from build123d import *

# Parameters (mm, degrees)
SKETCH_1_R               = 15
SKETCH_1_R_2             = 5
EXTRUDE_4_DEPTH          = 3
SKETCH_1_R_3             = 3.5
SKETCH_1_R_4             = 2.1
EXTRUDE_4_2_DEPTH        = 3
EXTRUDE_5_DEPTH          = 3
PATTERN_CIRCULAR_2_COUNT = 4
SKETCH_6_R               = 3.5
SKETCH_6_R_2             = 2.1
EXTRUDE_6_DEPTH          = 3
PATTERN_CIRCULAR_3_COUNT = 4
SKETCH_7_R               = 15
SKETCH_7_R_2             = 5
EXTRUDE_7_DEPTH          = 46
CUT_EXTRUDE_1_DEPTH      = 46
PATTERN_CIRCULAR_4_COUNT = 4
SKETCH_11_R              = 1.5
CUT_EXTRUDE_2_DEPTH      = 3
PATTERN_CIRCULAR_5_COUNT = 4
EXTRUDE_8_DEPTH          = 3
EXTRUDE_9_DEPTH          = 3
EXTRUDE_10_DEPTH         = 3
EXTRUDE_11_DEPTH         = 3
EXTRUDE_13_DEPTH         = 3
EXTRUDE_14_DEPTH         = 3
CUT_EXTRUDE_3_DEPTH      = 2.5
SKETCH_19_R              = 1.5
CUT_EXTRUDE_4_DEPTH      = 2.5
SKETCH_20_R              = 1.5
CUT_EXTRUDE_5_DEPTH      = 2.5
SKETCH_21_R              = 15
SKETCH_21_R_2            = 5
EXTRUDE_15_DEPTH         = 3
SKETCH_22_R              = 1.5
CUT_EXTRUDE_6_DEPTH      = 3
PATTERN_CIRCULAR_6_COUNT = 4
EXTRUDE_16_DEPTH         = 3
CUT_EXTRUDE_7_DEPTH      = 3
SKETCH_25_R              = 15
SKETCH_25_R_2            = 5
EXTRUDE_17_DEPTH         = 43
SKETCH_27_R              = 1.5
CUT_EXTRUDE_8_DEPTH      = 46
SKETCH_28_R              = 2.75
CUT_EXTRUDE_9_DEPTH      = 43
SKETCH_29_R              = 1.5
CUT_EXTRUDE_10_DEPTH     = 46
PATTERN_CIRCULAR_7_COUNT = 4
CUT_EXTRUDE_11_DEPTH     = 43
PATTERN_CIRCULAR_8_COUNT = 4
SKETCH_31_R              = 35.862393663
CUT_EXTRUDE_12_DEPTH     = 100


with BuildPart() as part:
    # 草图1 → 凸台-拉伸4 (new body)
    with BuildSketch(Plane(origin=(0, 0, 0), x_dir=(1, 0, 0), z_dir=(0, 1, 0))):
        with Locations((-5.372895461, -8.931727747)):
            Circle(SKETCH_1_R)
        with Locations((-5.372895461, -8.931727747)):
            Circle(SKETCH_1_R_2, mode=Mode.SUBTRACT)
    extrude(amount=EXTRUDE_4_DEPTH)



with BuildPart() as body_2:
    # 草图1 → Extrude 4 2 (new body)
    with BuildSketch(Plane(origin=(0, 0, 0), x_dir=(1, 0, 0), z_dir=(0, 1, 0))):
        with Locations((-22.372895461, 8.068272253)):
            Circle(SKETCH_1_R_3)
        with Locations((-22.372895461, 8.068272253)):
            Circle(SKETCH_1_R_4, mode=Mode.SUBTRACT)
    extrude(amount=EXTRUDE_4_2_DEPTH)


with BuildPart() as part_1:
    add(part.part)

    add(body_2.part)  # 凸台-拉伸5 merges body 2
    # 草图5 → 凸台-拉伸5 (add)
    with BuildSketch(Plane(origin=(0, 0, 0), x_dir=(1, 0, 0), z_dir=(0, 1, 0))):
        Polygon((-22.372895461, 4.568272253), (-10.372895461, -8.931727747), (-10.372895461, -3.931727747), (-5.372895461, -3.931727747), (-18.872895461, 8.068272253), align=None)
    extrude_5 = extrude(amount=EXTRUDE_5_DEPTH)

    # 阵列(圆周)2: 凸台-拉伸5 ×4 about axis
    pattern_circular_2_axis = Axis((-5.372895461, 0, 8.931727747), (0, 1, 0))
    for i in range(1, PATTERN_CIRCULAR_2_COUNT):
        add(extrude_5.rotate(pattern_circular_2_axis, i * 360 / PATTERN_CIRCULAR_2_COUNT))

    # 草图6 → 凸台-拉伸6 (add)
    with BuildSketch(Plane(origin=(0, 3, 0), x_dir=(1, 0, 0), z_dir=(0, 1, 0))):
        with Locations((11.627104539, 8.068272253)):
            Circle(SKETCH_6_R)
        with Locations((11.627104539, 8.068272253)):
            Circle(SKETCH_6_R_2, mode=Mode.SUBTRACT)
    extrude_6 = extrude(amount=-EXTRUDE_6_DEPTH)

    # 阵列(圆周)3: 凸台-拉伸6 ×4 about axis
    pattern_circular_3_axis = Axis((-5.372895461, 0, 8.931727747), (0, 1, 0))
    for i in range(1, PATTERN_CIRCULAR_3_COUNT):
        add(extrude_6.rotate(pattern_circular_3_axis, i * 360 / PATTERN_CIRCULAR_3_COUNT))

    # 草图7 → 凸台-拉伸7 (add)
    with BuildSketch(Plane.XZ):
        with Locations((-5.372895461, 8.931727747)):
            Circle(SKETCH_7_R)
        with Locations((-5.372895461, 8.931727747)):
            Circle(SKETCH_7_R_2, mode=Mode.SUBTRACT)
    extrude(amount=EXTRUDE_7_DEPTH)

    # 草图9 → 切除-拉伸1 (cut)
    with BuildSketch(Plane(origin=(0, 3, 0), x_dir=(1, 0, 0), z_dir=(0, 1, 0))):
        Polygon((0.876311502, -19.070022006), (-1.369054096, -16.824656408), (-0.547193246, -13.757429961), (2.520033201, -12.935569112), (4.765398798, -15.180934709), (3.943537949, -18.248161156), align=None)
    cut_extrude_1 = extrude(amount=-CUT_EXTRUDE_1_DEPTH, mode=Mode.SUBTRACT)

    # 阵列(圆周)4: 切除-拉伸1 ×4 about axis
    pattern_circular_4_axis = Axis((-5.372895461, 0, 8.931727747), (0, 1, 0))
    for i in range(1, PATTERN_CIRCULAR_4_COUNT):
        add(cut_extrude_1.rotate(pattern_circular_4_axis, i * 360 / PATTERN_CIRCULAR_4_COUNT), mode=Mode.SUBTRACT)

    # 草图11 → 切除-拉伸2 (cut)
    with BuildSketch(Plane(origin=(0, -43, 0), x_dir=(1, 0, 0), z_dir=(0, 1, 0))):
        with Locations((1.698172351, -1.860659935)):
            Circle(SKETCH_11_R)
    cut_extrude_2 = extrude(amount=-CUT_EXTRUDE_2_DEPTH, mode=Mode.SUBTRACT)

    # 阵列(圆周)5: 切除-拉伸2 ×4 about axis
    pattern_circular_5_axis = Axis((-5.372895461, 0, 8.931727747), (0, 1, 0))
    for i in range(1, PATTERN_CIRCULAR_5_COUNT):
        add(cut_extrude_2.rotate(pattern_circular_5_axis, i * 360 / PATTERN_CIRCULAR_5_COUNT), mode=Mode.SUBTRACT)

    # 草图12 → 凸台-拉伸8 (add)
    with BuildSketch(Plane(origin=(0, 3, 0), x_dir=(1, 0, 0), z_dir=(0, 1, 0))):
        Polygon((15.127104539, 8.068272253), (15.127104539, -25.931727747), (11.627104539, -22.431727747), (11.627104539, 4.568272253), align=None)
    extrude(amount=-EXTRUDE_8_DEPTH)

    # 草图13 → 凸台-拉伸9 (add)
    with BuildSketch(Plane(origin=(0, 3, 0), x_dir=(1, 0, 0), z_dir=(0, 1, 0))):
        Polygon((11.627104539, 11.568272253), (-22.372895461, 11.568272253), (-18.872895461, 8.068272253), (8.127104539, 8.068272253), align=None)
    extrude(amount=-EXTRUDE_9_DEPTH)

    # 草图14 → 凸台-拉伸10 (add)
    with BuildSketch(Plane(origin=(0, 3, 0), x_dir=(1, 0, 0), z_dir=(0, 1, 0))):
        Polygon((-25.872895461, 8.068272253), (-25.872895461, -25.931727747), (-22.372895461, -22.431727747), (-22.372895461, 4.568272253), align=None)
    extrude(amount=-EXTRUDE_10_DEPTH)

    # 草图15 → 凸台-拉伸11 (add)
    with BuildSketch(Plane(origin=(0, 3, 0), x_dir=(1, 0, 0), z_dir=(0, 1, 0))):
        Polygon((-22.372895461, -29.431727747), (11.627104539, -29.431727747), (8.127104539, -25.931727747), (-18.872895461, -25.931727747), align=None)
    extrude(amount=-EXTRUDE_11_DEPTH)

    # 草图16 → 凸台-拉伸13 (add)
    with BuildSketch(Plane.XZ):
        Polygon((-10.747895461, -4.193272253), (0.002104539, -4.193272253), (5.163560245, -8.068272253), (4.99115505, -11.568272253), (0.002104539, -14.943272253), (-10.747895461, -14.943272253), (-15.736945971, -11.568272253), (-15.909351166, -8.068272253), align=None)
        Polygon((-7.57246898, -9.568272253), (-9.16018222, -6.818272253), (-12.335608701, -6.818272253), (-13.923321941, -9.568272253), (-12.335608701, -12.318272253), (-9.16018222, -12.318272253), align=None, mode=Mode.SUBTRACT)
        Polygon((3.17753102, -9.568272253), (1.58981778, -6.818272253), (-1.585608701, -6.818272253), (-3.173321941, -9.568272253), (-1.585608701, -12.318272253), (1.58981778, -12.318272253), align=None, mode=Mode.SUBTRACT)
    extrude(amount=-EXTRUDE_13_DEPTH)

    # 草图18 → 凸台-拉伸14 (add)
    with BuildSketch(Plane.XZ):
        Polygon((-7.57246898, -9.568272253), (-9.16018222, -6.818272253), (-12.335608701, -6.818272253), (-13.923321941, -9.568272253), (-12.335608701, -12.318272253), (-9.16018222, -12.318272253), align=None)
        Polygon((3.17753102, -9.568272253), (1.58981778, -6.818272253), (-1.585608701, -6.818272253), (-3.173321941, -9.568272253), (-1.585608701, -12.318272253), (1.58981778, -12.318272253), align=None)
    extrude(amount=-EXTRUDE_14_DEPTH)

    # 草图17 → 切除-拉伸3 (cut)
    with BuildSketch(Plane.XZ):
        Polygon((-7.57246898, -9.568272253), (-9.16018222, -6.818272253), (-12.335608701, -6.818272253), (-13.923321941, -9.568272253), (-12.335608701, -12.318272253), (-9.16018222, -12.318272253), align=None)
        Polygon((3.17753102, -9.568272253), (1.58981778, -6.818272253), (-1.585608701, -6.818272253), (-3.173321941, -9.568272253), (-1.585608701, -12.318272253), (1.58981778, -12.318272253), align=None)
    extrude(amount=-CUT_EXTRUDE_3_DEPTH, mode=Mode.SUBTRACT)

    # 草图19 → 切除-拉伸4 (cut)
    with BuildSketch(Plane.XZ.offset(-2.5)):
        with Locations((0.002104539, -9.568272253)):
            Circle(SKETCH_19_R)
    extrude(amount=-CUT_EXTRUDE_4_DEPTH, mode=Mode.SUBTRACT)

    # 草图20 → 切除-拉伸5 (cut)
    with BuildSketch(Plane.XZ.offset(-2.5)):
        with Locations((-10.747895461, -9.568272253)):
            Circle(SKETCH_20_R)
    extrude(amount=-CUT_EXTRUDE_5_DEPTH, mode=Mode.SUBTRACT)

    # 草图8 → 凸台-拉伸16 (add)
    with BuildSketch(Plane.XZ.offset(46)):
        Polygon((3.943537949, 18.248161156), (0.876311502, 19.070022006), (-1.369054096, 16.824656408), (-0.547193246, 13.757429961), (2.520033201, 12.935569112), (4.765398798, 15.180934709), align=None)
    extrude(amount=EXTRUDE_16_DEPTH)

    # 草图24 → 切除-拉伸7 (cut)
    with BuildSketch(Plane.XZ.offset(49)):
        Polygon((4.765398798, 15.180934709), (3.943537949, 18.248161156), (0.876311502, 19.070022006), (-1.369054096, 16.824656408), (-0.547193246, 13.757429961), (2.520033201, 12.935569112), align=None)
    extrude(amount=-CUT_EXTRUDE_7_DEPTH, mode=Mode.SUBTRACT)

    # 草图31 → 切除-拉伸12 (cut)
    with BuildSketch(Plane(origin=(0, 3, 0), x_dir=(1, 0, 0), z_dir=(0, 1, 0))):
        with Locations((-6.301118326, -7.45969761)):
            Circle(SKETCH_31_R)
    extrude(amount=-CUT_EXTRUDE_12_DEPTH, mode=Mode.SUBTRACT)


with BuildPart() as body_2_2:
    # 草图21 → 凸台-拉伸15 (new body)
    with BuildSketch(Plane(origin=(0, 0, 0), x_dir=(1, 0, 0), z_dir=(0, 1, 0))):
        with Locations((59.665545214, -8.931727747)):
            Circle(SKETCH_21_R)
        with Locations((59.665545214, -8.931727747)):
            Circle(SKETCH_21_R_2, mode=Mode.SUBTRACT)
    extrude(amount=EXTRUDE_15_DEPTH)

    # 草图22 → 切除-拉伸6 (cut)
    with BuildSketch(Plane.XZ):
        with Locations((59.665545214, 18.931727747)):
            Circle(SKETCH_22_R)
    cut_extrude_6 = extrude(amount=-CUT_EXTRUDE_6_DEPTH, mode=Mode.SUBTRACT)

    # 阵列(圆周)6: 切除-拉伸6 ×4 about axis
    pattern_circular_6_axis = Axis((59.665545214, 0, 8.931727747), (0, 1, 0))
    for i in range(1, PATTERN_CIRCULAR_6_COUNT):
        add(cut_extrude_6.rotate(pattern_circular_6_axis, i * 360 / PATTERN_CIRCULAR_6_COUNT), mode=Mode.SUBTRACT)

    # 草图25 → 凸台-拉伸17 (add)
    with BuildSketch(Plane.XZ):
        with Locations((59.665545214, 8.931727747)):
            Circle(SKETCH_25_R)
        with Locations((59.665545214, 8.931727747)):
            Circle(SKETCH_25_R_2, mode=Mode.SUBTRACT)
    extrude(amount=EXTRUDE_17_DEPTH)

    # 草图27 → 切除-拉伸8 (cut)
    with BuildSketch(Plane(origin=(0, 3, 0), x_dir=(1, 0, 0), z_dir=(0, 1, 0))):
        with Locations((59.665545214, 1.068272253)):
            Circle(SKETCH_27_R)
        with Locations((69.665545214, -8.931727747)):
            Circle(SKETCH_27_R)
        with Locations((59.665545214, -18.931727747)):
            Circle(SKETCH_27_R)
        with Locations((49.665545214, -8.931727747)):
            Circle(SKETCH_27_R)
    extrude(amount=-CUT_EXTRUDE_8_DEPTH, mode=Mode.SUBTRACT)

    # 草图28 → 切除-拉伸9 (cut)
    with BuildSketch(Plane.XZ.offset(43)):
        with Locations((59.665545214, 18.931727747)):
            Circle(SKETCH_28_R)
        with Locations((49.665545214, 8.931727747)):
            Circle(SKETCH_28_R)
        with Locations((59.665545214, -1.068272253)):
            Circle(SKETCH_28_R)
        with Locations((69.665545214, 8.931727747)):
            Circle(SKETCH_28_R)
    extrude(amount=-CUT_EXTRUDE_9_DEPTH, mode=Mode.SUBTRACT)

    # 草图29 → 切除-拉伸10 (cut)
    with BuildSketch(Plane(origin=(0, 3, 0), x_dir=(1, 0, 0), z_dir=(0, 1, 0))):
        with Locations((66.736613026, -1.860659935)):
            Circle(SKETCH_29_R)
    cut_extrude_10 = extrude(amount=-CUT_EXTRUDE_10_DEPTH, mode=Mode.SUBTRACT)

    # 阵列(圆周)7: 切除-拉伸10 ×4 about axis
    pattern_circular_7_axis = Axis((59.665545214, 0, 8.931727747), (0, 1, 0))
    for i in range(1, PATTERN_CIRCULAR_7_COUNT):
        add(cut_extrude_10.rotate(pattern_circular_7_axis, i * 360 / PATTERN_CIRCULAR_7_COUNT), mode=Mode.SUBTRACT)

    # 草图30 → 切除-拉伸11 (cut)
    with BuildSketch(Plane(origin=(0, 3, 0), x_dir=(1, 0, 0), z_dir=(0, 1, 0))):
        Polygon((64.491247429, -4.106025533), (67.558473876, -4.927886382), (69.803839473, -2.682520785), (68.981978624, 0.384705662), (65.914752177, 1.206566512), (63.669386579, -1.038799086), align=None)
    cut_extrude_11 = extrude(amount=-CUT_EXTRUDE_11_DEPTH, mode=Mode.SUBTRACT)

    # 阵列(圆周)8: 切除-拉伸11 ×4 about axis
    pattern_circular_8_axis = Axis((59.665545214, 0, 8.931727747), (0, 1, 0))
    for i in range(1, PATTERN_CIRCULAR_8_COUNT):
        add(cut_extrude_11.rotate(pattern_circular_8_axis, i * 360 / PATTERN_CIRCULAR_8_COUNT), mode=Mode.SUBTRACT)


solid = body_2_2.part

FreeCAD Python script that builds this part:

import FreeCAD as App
import Part
import Sketcher
from FreeCAD import Vector
Q = App.Units.Quantity

doc = App.newDocument("Part")
body = doc.addObject("PartDesign::Body", "Body")

sketch1 = body.newObject("Sketcher::SketchObject", "Sketch")
sketch1.AttachmentSupport = (doc.getObject("XZ_Plane"), [""])
sketch1.MapMode = "FlatFace"
sketch1.addGeometry([
    Part.Circle(Vector(-5, 9, 0), Vector(0, 0, 1), 15),
    Part.Circle(Vector(-5, 9, 0), Vector(0, 0, 1), 5),
], False)
sketch1.addConstraint([
    Sketcher.Constraint("Coincident", 1, 3, 0, 3),
    Sketcher.Constraint("Diameter", 0, 30.0),
    Sketcher.Constraint("Diameter", 1, 10.0),
    Sketcher.Constraint("DistanceX", 0, 3, -1, 1, 5.372895),
    Sketcher.Constraint("DistanceY", -1, 1, 0, 3, 8.931728),
])
pad1 = body.newObject("PartDesign::Pad", "Pad")
pad1.Profile = sketch1
pad1.Length = 3
pad1.Reversed = True
body2 = doc.addObject("PartDesign::Body", "Body001")

sketch2 = body2.newObject("Sketcher::SketchObject", "Sketch001")
sketch2.AttachmentSupport = (doc.getObject("XZ_Plane001"), [""])
sketch2.MapMode = "FlatFace"
sketch2.addGeometry([
    Part.Circle(Vector(-22.4, -8.1, 0), Vector(0, 0, 1), 3.5),
    Part.Circle(Vector(-22.4, -8.1, 0), Vector(0, 0, 1), 2.1),
], False)
sketch2.addConstraint([
    Sketcher.Constraint("Coincident", 1, 3, 0, 3),
    Sketcher.Constraint("Diameter", 0, 7.0),
    Sketcher.Constraint("Diameter", 1, 4.2),
    Sketcher.Constraint("DistanceX", 0, 3, -1, 1, 22.372895),
    Sketcher.Constraint("DistanceY", 0, 3, -1, 1, 8.068272),
])
pad2 = body2.newObject("PartDesign::Pad", "Pad001")
pad2.Profile = sketch2
pad2.Length = 3
pad2.Reversed = True
body.AllowCompound = True
doc.recompute()

boolean = body.newObject("PartDesign::Boolean", "Boolean")
boolean.Type = "Fuse"
boolean.addObjects([body2])

sketch3 = body.newObject("Sketcher::SketchObject", "Sketch002")
sketch3.AttachmentSupport = (doc.getObject("XZ_Plane"), [""])
sketch3.MapMode = "FlatFace"
sketch3.addGeometry([
    Part.LineSegment(Vector(-22.4, -4.6, 0), Vector(-10.4, 8.9, 0)),
    Part.LineSegment(Vector(-10.4, 8.9, 0), Vector(-10.4, 3.9, 0)),
    Part.LineSegment(Vector(-10.4, 3.9, 0), Vector(-5.4, 3.9, 0)),
    Part.LineSegment(Vector(-5.4, 3.9, 0), Vector(-18.9, -8.1, 0)),
    Part.LineSegment(Vector(-18.9, -8.1, 0), Vector(-22.4, -4.6, 0)),
], False)
sketch3.addConstraint([
    Sketcher.Constraint("Coincident", 0, 2, 1, 1),
    Sketcher.Constraint("Coincident", 1, 2, 2, 1),
    Sketcher.Constraint("Coincident", 2, 2, 3, 1),
    Sketcher.Constraint("Coincident", 3, 2, 4, 1),
    Sketcher.Constraint("Coincident", 4, 2, 0, 1),
    Sketcher.Constraint("Vertical", 1),
    Sketcher.Constraint("Horizontal", 2),
    Sketcher.Constraint("Equal", 2, 1),
    Sketcher.Constraint("Equal", 0, 3),
    Sketcher.Constraint("DistanceX", 2, 1, 2, 2, 5.0),
    Sketcher.Constraint("Angle", 4, Q("135 deg")),
    Sketcher.Constraint("DistanceY", 3, 2, 1, 2, 12.0),
    Sketcher.Constraint("DistanceX", 3, 2, 1, 2, 8.5),
    Sketcher.Constraint("DistanceX", 0, 2, -1, 1, 10.372895),
    Sketcher.Constraint("DistanceY", -1, 1, 0, 2, 8.931728),
])
pad3 = body.newObject("PartDesign::Pad", "Pad002")
pad3.Profile = sketch3
pad3.Length = 3
pad3.Reversed = True
doc.recompute()

datumline = body.newObject("PartDesign::Line", "DatumLine")
datumline.Placement = App.Placement(Vector(-5.372895, 0, 8.931728), App.Rotation(Vector(0, 0, 1), Vector(0, 1, 0)))
polarpattern = body.newObject("PartDesign::PolarPattern", "PolarPattern")
polarpattern.Originals = [pad3]
polarpattern.Axis = (datumline, [""])
polarpattern.Angle = 360
polarpattern.Occurrences = 4
body.Tip = polarpattern

sketch4 = body.newObject("Sketcher::SketchObject", "Sketch003")
sketch4.AttachmentSupport = (doc.getObject("XZ_Plane"), [""])
sketch4.MapMode = "FlatFace"
sketch4.AttachmentOffset = App.Placement(Vector(0, 0, -3), App.Rotation())
sketch4.addGeometry([
    Part.Circle(Vector(11.6, -8.1, 0), Vector(0, 0, 1), 3.5),
    Part.Circle(Vector(11.6, -8.1, 0), Vector(0, 0, 1), 2.1),
], False)
sketch4.addConstraint([
    Sketcher.Constraint("Coincident", 1, 3, 0, 3),
    Sketcher.Constraint("Diameter", 0, 7.0),
    Sketcher.Constraint("Diameter", 1, 4.2),
    Sketcher.Constraint("DistanceX", -1, 1, 0, 3, 11.627105),
    Sketcher.Constraint("DistanceY", 0, 3, -1, 1, 8.068272),
])
pad4 = body.newObject("PartDesign::Pad", "Pad003")
pad4.Profile = sketch4
pad4.Length = 3
doc.recompute()

datumline2 = body.newObject("PartDesign::Line", "DatumLine001")
datumline2.Placement = App.Placement(Vector(-5.372895, 0, 8.931728), App.Rotation(Vector(0, 0, 1), Vector(0, 1, 0)))
polarpattern2 = body.newObject("PartDesign::PolarPattern", "PolarPattern001")
polarpattern2.Originals = [pad4]
polarpattern2.Axis = (datumline2, [""])
polarpattern2.Angle = 360
polarpattern2.Occurrences = 4
body.Tip = polarpattern2

sketch5 = body.newObject("Sketcher::SketchObject", "Sketch004")
sketch5.AttachmentSupport = (doc.getObject("XZ_Plane"), [""])
sketch5.MapMode = "FlatFace"
sketch5.addGeometry([
    Part.Circle(Vector(-5, 9, 0), Vector(0, 0, 1), 15),
    Part.Circle(Vector(-5, 9, 0), Vector(0, 0, 1), 5),
], False)
sketch5.addConstraint([
    Sketcher.Constraint("Coincident", 1, 3, 0, 3),
    Sketcher.Constraint("Diameter", 0, 30.0),
    Sketcher.Constraint("Diameter", 1, 10.0),
    Sketcher.Constraint("DistanceX", 0, 3, -1, 1, 5.372895),
    Sketcher.Constraint("DistanceY", -1, 1, 0, 3, 8.931728),
])
pad5 = body.newObject("PartDesign::Pad", "Pad004")
pad5.Profile = sketch5
pad5.Length = 46

sketch6 = body.newObject("Sketcher::SketchObject", "Sketch005")
sketch6.AttachmentSupport = (doc.getObject("XZ_Plane"), [""])
sketch6.MapMode = "FlatFace"
sketch6.AttachmentOffset = App.Placement(Vector(0, 0, -3), App.Rotation())
sketch6.addGeometry([
    Part.LineSegment(Vector(-1.4, 16.8, 0), Vector(0.9, 19.1, 0)),
    Part.LineSegment(Vector(0.9, 19.1, 0), Vector(3.9, 18.2, 0)),
    Part.LineSegment(Vector(3.9, 18.2, 0), Vector(4.8, 15.2, 0)),
    Part.LineSegment(Vector(4.8, 15.2, 0), Vector(2.5, 12.9, 0)),
    Part.LineSegment(Vector(2.5, 12.9, 0), Vector(-0.5, 13.8, 0)),
    Part.LineSegment(Vector(-0.5, 13.8, 0), Vector(-1.4, 16.8, 0)),
], False)
sketch6.addConstraint([
    Sketcher.Constraint("Coincident", 0, 2, 1, 1),
    Sketcher.Constraint("Coincident", 1, 2, 2, 1),
    Sketcher.Constraint("Coincident", 2, 2, 3, 1),
    Sketcher.Constraint("Coincident", 3, 2, 4, 1),
    Sketcher.Constraint("Coincident", 4, 2, 5, 1),
    Sketcher.Constraint("Coincident", 5, 2, 0, 1),
    Sketcher.Constraint("Parallel", 0, 3),
    Sketcher.Constraint("Parallel", 1, 4),
    Sketcher.Constraint("Parallel", 2, 5),
    Sketcher.Constraint("Equal", 0, 1),
    Sketcher.Constraint("Equal", 1, 2),
    Sketcher.Constraint("Equal", 2, 3),
    Sketcher.Constraint("Angle", 0, Q("45 deg")),
    Sketcher.Constraint("Angle", 1, Q("-15 deg")),
    Sketcher.Constraint("Angle", 2, Q("-75 deg")),
    Sketcher.Constraint("DistanceX", -1, 1, 2, 2, 4.765399),
    Sketcher.Constraint("DistanceX", -1, 1, 0, 2, 0.876312),
    Sketcher.Constraint("DistanceY", -1, 1, 1, 2, 18.248161),
])
pocket1 = body.newObject("PartDesign::Pocket", "Pocket")
pocket1.Profile = sketch6
pocket1.Length = 46
pocket1.Reversed = True
doc.recompute()

datumline3 = body.newObject("PartDesign::Line", "DatumLine002")
datumline3.Placement = App.Placement(Vector(-5.372895, 0, 8.931728), App.Rotation(Vector(0, 0, 1), Vector(0, 1, 0)))
polarpattern3 = body.newObject("PartDesign::PolarPattern", "PolarPattern002")
polarpattern3.Originals = [pocket1]
polarpattern3.Axis = (datumline3, [""])
polarpattern3.Angle = 360
polarpattern3.Occurrences = 4
body.Tip = polarpattern3

sketch7 = body.newObject("Sketcher::SketchObject", "Sketch006")
sketch7.AttachmentSupport = (doc.getObject("XZ_Plane"), [""])
sketch7.MapMode = "FlatFace"
sketch7.AttachmentOffset = App.Placement(Vector(0, 0, 43), App.Rotation())
sketch7.addGeometry(Part.Circle(Vector(1.7, 1.9, 0), Vector(0, 0, 1), 1.5), False)
sketch7.addConstraint([
    Sketcher.Constraint("Diameter", 0, 3.0),
    Sketcher.Constraint("DistanceY", -1, 1, 0, 3, 1.86066),
    Sketcher.Constraint("DistanceX", -1, 1, 0, 3, 1.698172),
])
pocket2 = body.newObject("PartDesign::Pocket", "Pocket001")
pocket2.Profile = sketch7
pocket2.Length = 3
pocket2.Reversed = True
doc.recompute()

datumline4 = body.newObject("PartDesign::Line", "DatumLine003")
datumline4.Placement = App.Placement(Vector(-5.372895, 0, 8.931728), App.Rotation(Vector(0, 0, 1), Vector(0, 1, 0)))
polarpattern4 = body.newObject("PartDesign::PolarPattern", "PolarPattern003")
polarpattern4.Originals = [pocket2]
polarpattern4.Axis = (datumline4, [""])
polarpattern4.Angle = 360
polarpattern4.Occurrences = 4
body.Tip = polarpattern4

sketch8 = body.newObject("Sketcher::SketchObject", "Sketch007")
sketch8.AttachmentSupport = (doc.getObject("XZ_Plane"), [""])
sketch8.MapMode = "FlatFace"
sketch8.AttachmentOffset = App.Placement(Vector(0, 0, -3), App.Rotation())
sketch8.addGeometry([
    Part.LineSegment(Vector(15.1, 25.9, 0), Vector(15.1, -8.1, 0)),
    Part.LineSegment(Vector(15.1, -8.1, 0), Vector(11.6, -4.6, 0)),
    Part.LineSegment(Vector(11.6, -4.6, 0), Vector(11.6, 22.4, 0)),
    Part.LineSegment(Vector(11.6, 22.4, 0), Vector(15.1, 25.9, 0)),
], False)
sketch8.addConstraint([
    Sketcher.Constraint("Coincident", 0, 2, 1, 1),
    Sketcher.Constraint("Coincident", 1, 2, 2, 1),
    Sketcher.Constraint("Coincident", 2, 2, 3, 1),
    Sketcher.Constraint("Coincident", 3, 2, 0, 1),
    Sketcher.Constraint("Vertical", 0),
    Sketcher.Constraint("Vertical", 2),
    Sketcher.Constraint("Perpendicular", 1, 3),
    Sketcher.Constraint("Equal", 1, 3),
    Sketcher.Constraint("DistanceY", 0, 2, 0, 1, 34.0),
    Sketcher.Constraint("DistanceY", 2, 1, 2, 2, 27.0),
    Sketcher.Constraint("DistanceX", -1, 1, 0, 2, 15.127105),
    Sketcher.Constraint("DistanceY", 0, 2, -1, 1, 8.068272),
])
pad6 = body.newObject("PartDesign::Pad", "Pad005")
pad6.Profile = sketch8
pad6.Length = 3

sketch9 = body.newObject("Sketcher::SketchObject", "Sketch008")
sketch9.AttachmentSupport = (doc.getObject("XZ_Plane"), [""])
sketch9.MapMode = "FlatFace"
sketch9.AttachmentOffset = App.Placement(Vector(0, 0, -3), App.Rotation())
sketch9.addGeometry([
    Part.LineSegment(Vector(11.6, -11.6, 0), Vector(-22.4, -11.6, 0)),
    Part.LineSegment(Vector(-22.4, -11.6, 0), Vector(-18.9, -8.1, 0)),
    Part.LineSegment(Vector(-18.9, -8.1, 0), Vector(8.1, -8.1, 0)),
    Part.LineSegment(Vector(8.1, -8.1, 0), Vector(11.6, -11.6, 0)),
], False)
sketch9.addConstraint([
    Sketcher.Constraint("Coincident", 0, 2, 1, 1),
    Sketcher.Constraint("Coincident", 1, 2, 2, 1),
    Sketcher.Constraint("Coincident", 2, 2, 3, 1),
    Sketcher.Constraint("Coincident", 3, 2, 0, 1),
    Sketcher.Constraint("Horizontal", 0),
    Sketcher.Constraint("Horizontal", 2),
    Sketcher.Constraint("Perpendicular", 1, 3),
    Sketcher.Constraint("Equal", 1, 3),
    Sketcher.Constraint("DistanceX", 0, 2, 0, 1, 34.0),
    Sketcher.Constraint("DistanceX", 2, 1, 2, 2, 27.0),
    Sketcher.Constraint("DistanceX", 0, 2, -1, 1, 22.372895),
    Sketcher.Constraint("DistanceY", 0, 2, -1, 1, 11.568272),
])
pad7 = body.newObject("PartDesign::Pad", "Pad006")
pad7.Profile = sketch9
pad7.Length = 3

sketch10 = body.newObject("Sketcher::SketchObject", "Sketch009")
sketch10.AttachmentSupport = (doc.getObject("XZ_Plane"), [""])
sketch10.MapMode = "FlatFace"
sketch10.AttachmentOffset = App.Placement(Vector(0, 0, -3), App.Rotation())
sketch10.addGeometry([
    Part.LineSegment(Vector(-25.9, -8.1, 0), Vector(-25.9, 25.9, 0)),
    Part.LineSegment(Vector(-25.9, 25.9, 0), Vector(-22.4, 22.4, 0)),
    Part.LineSegment(Vector(-22.4, 22.4, 0), Vector(-22.4, -4.6, 0)),
    Part.LineSegment(Vector(-22.4, -4.6, 0), Vector(-25.9, -8.1, 0)),
], False)
sketch10.addConstraint([
    Sketcher.Constraint("Coincident", 0, 2, 1, 1),
    Sketcher.Constraint("Coincident", 1, 2, 2, 1),
    Sketcher.Constraint("Coincident", 2, 2, 3, 1),
    Sketcher.Constraint("Coincident", 3, 2, 0, 1),
    Sketcher.Constraint("Vertical", 0),
    Sketcher.Constraint("Vertical", 2),
    Sketcher.Constraint("Perpendicular", 1, 3),
    Sketcher.Constraint("Equal", 1, 3),
    Sketcher.Constraint("DistanceY", 0, 1, 0, 2, 34.0),
    Sketcher.Constraint("DistanceY", 2, 2, 2, 1, 27.0),
    Sketcher.Constraint("DistanceX", 0, 2, -1, 1, 25.872895),
    Sketcher.Constraint("DistanceY", -1, 1, 0, 2, 25.931728),
])
pad8 = body.newObject("PartDesign::Pad", "Pad007")
pad8.Profile = sketch10
pad8.Length = 3

sketch11 = body.newObject("Sketcher::SketchObject", "Sketch010")
sketch11.AttachmentSupport = (doc.getObject("XZ_Plane"), [""])
sketch11.MapMode = "FlatFace"
sketch11.AttachmentOffset = App.Placement(Vector(0, 0, -3), App.Rotation())
sketch11.addGeometry([
    Part.LineSegment(Vector(-22.4, 29.4, 0), Vector(11.6, 29.4, 0)),
    Part.LineSegment(Vector(11.6, 29.4, 0), Vector(8.1, 25.9, 0)),
    Part.LineSegment(Vector(8.1, 25.9, 0), Vector(-18.9, 25.9, 0)),
    Part.LineSegment(Vector(-18.9, 25.9, 0), Vector(-22.4, 29.4, 0)),
], False)
sketch11.addConstraint([
    Sketcher.Constraint("Coincident", 0, 2, 1, 1),
    Sketcher.Constraint("Coincident", 1, 2, 2, 1),
    Sketcher.Constraint("Coincident", 2, 2, 3, 1),
    Sketcher.Constraint("Coincident", 3, 2, 0, 1),
    Sketcher.Constraint("Horizontal", 0),
    Sketcher.Constraint("Horizontal", 2),
    Sketcher.Constraint("Perpendicular", 1, 3),
    Sketcher.Constraint("Equal", 1, 3),
    Sketcher.Constraint("DistanceX", 0, 1, 0, 2, 34.0),
    Sketcher.Constraint("DistanceX", 2, 2, 2, 1, 27.0),
    Sketcher.Constraint("DistanceX", -1, 1, 0, 2, 11.627105),
    Sketcher.Constraint("DistanceY", -1, 1, 0, 2, 29.431728),
])
pad9 = body.newObject("PartDesign::Pad", "Pad008")
pad9.Profile = sketch11
pad9.Length = 3

sketch12 = body.newObject("Sketcher::SketchObject", "Sketch011")
sketch12.AttachmentSupport = (doc.getObject("XZ_Plane"), [""])
sketch12.MapMode = "FlatFace"
sketch12.addGeometry([
    Part.LineSegment(Vector(0, -4.2, 0), Vector(-10.7, -4.2, 0)),
    Part.LineSegment(Vector(-10.7, -4.2, 0), Vector(-15.9, -8.1, 0)),
    Part.LineSegment(Vector(-15.9, -8.1, 0), Vector(-15.7, -11.6, 0)),
    Part.LineSegment(Vector(-15.7, -11.6, 0), Vector(-10.7, -14.9, 0)),
    Part.LineSegment(Vector(-10.7, -14.9, 0), Vector(0, -14.9, 0)),
    Part.LineSegment(Vector(0, -14.9, 0), Vector(5, -11.6, 0)),
    Part.LineSegment(Vector(5, -11.6, 0), Vector(5.2, -8.1, 0)),
    Part.LineSegment(Vector(5.2, -8.1, 0), Vector(0, -4.2, 0)),
    Part.LineSegment(Vector(3.2, -9.6, 0), Vector(1.6, -12.3, 0)),
    Part.LineSegment(Vector(1.6, -12.3, 0), Vector(-1.6, -12.3, 0)),
    Part.LineSegment(Vector(-1.6, -12.3, 0), Vector(-3.2, -9.6, 0)),
    Part.LineSegment(Vector(-3.2, -9.6, 0), Vector(-1.6, -6.8, 0)),
    Part.LineSegment(Vector(-1.6, -6.8, 0), Vector(1.6, -6.8, 0)),
    Part.LineSegment(Vector(1.6, -6.8, 0), Vector(3.2, -9.6, 0)),
    Part.LineSegment(Vector(-7.6, -9.6, 0), Vector(-9.2, -12.3, 0)),
    Part.LineSegment(Vector(-9.2, -12.3, 0), Vector(-12.3, -12.3, 0)),
    Part.LineSegment(Vector(-12.3, -12.3, 0), Vector(-13.9, -9.6, 0)),
    Part.LineSegment(Vector(-13.9, -9.6, 0), Vector(-12.3, -6.8, 0)),
    Part.LineSegment(Vector(-12.3, -6.8, 0), Vector(-9.2, -6.8, 0)),
    Part.LineSegment(Vector(-9.2, -6.8, 0), Vector(-7.6, -9.6, 0)),
], False)
sketch12.addConstraint([
    Sketcher.Constraint("Coincident", 0, 2, 1, 1),
    Sketcher.Constraint("Coincident", 1, 2, 2, 1),
    Sketcher.Constraint("Coincident", 2, 2, 3, 1),
    Sketcher.Constraint("Coincident", 3, 2, 4, 1),
    Sketcher.Constraint("Coincident", 4, 2, 5, 1),
    Sketcher.Constraint("Coincident", 5, 2, 6, 1),
    Sketcher.Constraint("Coincident", 6, 2, 7, 1),
    Sketcher.Constraint("Coincident", 7, 2, 0, 1),
    Sketcher.Constraint("Coincident", 8, 2, 9, 1),
    Sketcher.Constraint("Coincident", 9, 2, 10, 1),
    Sketcher.Constraint("Coincident", 10, 2, 11, 1),
    Sketcher.Constraint("Coincident", 11, 2, 12, 1),
    Sketcher.Constraint("Coincident", 12, 2, 13, 1),
    Sketcher.Constraint("Coincident", 13, 2, 8, 1),
    Sketcher.Constraint("Coincident", 14, 2, 15, 1),
    Sketcher.Constraint("Coincident", 15, 2, 16, 1),
    Sketcher.Constraint("Coincident", 16, 2, 17, 1),
    Sketcher.Constraint("Coincident", 17, 2, 18, 1),
    Sketcher.Constraint("Coincident", 18, 2, 19, 1),
    Sketcher.Constraint("Coincident", 19, 2, 14, 1),
    Sketcher.Constraint("Horizontal", 0),
    Sketcher.Constraint("Horizontal", 4),
    Sketcher.Constraint("Horizontal", 9),
    Sketcher.Constraint("Horizontal", 12),
    Sketcher.Constraint("Horizontal", 15),
    Sketcher.Constraint("Horizontal", 18),
    Sketcher.Constraint("Parallel", 8, 11),
    Sketcher.Constraint("Parallel", 10, 13),
    Sketcher.Constraint("Parallel", 11, 14),
    Sketcher.Constraint("Parallel", 13, 16),
    Sketcher.Constraint("Parallel", 14, 17),
    Sketcher.Constraint("Parallel", 16, 19),
    Sketcher.Constraint("Horizontal", 2, 2, 5, 2),
    Sketcher.Constraint("Horizontal", 1, 2, 6, 2),
    Sketcher.Constraint("Horizontal", 10, 2, 13, 2),
    Sketcher.Constraint("Horizontal", 9, 2, 14, 2),
    Sketcher.Constraint("Horizontal", 13, 2, 16, 2),
    Sketcher.Constraint("Horizontal", 12, 2, 17, 2),
    Sketcher.Constraint("Horizontal", 16, 2, 19, 2),
    Sketcher.Constraint("Vertical", 0, 2, 3, 2),
    Sketcher.Constraint("Vertical", 4, 2, 7, 2),
    Sketcher.Constraint("Vertical", 9, 2, 11, 2),
    Sketcher.Constraint("Vertical", 8, 2, 12, 2),
    Sketcher.Constraint("Equal", 12, 15),
    Sketcher.Constraint("Equal", 3, 5),
    Sketcher.Constraint("Equal", 2, 6),
    Sketcher.Constraint("Angle", 8, Q("-120 deg")),
    Sketcher.Constraint("DistanceY", 5, 2, 10, 2, 2.0),
    Sketcher.Constraint("DistanceX", 0, 2, 0, 1, 10.75),
    Sketcher.Constraint("DistanceY", 2, 2, 1, 2, 3.5),
    Sketcher.Constraint("DistanceY", 9, 2, 11, 2, 5.5),
    Sketcher.Constraint("DistanceY", 3, 2, 0, 2, 10.75),
    Sketcher.Constraint("DistanceY", 1, 2, 0, 2, 3.875),
    Sketcher.Constraint("DistanceX", 2, 2, 5, 2, 20.728101),
    Sketcher.Constraint("DistanceX", 9, 2, 9, 1, 3.175426),
    Sketcher.Constraint("DistanceX", 1, 2, -1, 1, 15.909351),
    Sketcher.Constraint("DistanceX", -1, 1, 6, 2, 5.16356),
    Sketcher.Constraint("DistanceX", 9, 2, -1, 1, 1.585609),
    Sketcher.Constraint("DistanceX", 15, 2, -1, 1, 12.335609),
    Sketcher.Constraint("DistanceY", 0, 2, -1, 1, 4.193272),
])
pad10 = body.newObject("PartDesign::Pad", "Pad009")
pad10.Profile = sketch12
pad10.Length = 3
pad10.Reversed = True

sketch13 = body.newObject("Sketcher::SketchObject", "Sketch012")
sketch13.AttachmentSupport = (doc.getObject("XZ_Plane"), [""])
sketch13.MapMode = "FlatFace"
sketch13.addGeometry([
    Part.LineSegment(Vector(-7.6, -9.6, 0), Vector(-9.2, -6.8, 0)),
    Part.LineSegment(Vector(-9.2, -6.8, 0), Vector(-12.3, -6.8, 0)),
    Part.LineSegment(Vector(-12.3, -6.8, 0), Vector(-13.9, -9.6, 0)),
    Part.LineSegment(Vector(-13.9, -9.6, 0), Vector(-12.3, -12.3, 0)),
    Part.LineSegment(Vector(-12.3, -12.3, 0), Vector(-9.2, -12.3, 0)),
    Part.LineSegment(Vector(-9.2, -12.3, 0), Vector(-7.6, -9.6, 0)),
    Part.LineSegment(Vector(3.2, -9.6, 0), Vector(1.6, -6.8, 0)),
    Part.LineSegment(Vector(1.6, -6.8, 0), Vector(-1.6, -6.8, 0)),
    Part.LineSegment(Vector(-1.6, -6.8, 0), Vector(-3.2, -9.6, 0)),
    Part.LineSegment(Vector(-3.2, -9.6, 0), Vector(-1.6, -12.3, 0)),
    Part.LineSegment(Vector(-1.6, -12.3, 0), Vector(1.6, -12.3, 0)),
    Part.LineSegment(Vector(1.6, -12.3, 0), Vector(3.2, -9.6, 0)),
], False)
sketch13.addConstraint([
    Sketcher.Constraint("Coincident", 0, 2, 1, 1),
    Sketcher.Constraint("Coincident", 1, 2, 2, 1),
    Sketcher.Constraint("Coincident", 2, 2, 3, 1),
    Sketcher.Constraint("Coincident", 3, 2, 4, 1),
    Sketcher.Constraint("Coincident", 4, 2, 5, 1),
    Sketcher.Constraint("Coincident", 5, 2, 0, 1),
    Sketcher.Constraint("Coincident", 6, 2, 7, 1),
    Sketcher.Constraint("Coincident", 7, 2, 8, 1),
    Sketcher.Constraint("Coincident", 8, 2, 9, 1),
    Sketcher.Constraint("Coincident", 9, 2, 10, 1),
    Sketcher.Constraint("Coincident", 10, 2, 11, 1),
    Sketcher.Constraint("Coincident", 11, 2, 6, 1),
    Sketcher.Constraint("Horizontal", 1),
    Sketcher.Constraint("Horizontal", 4),
    Sketcher.Constraint("Horizontal", 7),
    Sketcher.Constraint("Horizontal", 10),
    Sketcher.Constraint("Parallel", 0, 3),
    Sketcher.Constraint("Parallel", 2, 5),
    Sketcher.Constraint("Parallel", 3, 6),
    Sketcher.Constraint("Parallel", 5, 8),
    Sketcher.Constraint("Parallel", 6, 9),
    Sketcher.Constraint("Parallel", 8, 11),
    Sketcher.Constraint("Horizontal", 2, 2, 5, 2),
    Sketcher.Constraint("Horizontal", 1, 2, 6, 2),
    Sketcher.Constraint("Horizontal", 5, 2, 8, 2),
    Sketcher.Constraint("Horizontal", 4, 2, 9, 2),
    Sketcher.Constraint("Horizontal", 8, 2, 11, 2),
    Sketcher.Constraint("Vertical", 1, 2, 3, 2),
    Sketcher.Constraint("Vertical", 0, 2, 4, 2),
    Sketcher.Constraint("Equal", 4, 7),
    Sketcher.Constraint("Angle", 0, Q("120 deg")),
    Sketcher.Constraint("DistanceY", 3, 2, 1, 2, 5.5),
    Sketcher.Constraint("DistanceX", 0, 2, 6, 2, 10.75),
    Sketcher.Constraint("DistanceX", 1, 2, 1, 1, 3.175426),
    Sketcher.Constraint("DistanceX", 1, 2, -1, 1, 12.335609),
    Sketcher.Constraint("DistanceY", 0, 2, -1, 1, 6.818272),
])
pad11 = body.newObject("PartDesign::Pad", "Pad010")
pad11.Profile = sketch13
pad11.Length = 3
pad11.Reversed = True

sketch14 = body.newObject("Sketcher::SketchObject", "Sketch013")
sketch14.AttachmentSupport = (doc.getObject("XZ_Plane"), [""])
sketch14.MapMode = "FlatFace"
sketch14.addGeometry([
    Part.LineSegment(Vector(-7.6, -9.6, 0), Vector(-9.2, -6.8, 0)),
    Part.LineSegment(Vector(-9.2, -6.8, 0), Vector(-12.3, -6.8, 0)),
    Part.LineSegment(Vector(-12.3, -6.8, 0), Vector(-13.9, -9.6, 0)),
    Part.LineSegment(Vector(-13.9, -9.6, 0), Vector(-12.3, -12.3, 0)),
    Part.LineSegment(Vector(-12.3, -12.3, 0), Vector(-9.2, -12.3, 0)),
    Part.LineSegment(Vector(-9.2, -12.3, 0), Vector(-7.6, -9.6, 0)),
    Part.LineSegment(Vector(3.2, -9.6, 0), Vector(1.6, -6.8, 0)),
    Part.LineSegment(Vector(1.6, -6.8, 0), Vector(-1.6, -6.8, 0)),
    Part.LineSegment(Vector(-1.6, -6.8, 0), Vector(-3.2, -9.6, 0)),
    Part.LineSegment(Vector(-3.2, -9.6, 0), Vector(-1.6, -12.3, 0)),
    Part.LineSegment(Vector(-1.6, -12.3, 0), Vector(1.6, -12.3, 0)),
    Part.LineSegment(Vector(1.6, -12.3, 0), Vector(3.2, -9.6, 0)),
], False)
sketch14.addConstraint([
    Sketcher.Constraint("Coincident", 0, 2, 1, 1),
    Sketcher.Constraint("Coincident", 1, 2, 2, 1),
    Sketcher.Constraint("Coincident", 2, 2, 3, 1),
    Sketcher.Constraint("Coincident", 3, 2, 4, 1),
    Sketcher.Constraint("Coincident", 4, 2, 5, 1),
    Sketcher.Constraint("Coincident", 5, 2, 0, 1),
    Sketcher.Constraint("Coincident", 6, 2, 7, 1),
    Sketcher.Constraint("Coincident", 7, 2, 8, 1),
    Sketcher.Constraint("Coincident", 8, 2, 9, 1),
    Sketcher.Constraint("Coincident", 9, 2, 10, 1),
    Sketcher.Constraint("Coincident", 10, 2, 11, 1),
    Sketcher.Constraint("Coincident", 11, 2, 6, 1),
    Sketcher.Constraint("Horizontal", 1),
    Sketcher.Constraint("Horizontal", 4),
    Sketcher.Constraint("Horizontal", 7),
    Sketcher.Constraint("Horizontal", 10),
    Sketcher.Constraint("Parallel", 0, 3),
    Sketcher.Constraint("Parallel", 2, 5),
    Sketcher.Constraint("Parallel", 3, 6),
    Sketcher.Constraint("Parallel", 5, 8),
    Sketcher.Constraint("Parallel", 6, 9),
    Sketcher.Constraint("Parallel", 8, 11),
    Sketcher.Constraint("Horizontal", 2, 2, 5, 2),
    Sketcher.Constraint("Horizontal", 1, 2, 6, 2),
    Sketcher.Constraint("Horizontal", 5, 2, 8, 2),
    Sketcher.Constraint("Horizontal", 4, 2, 9, 2),
    Sketcher.Constraint("Horizontal", 8, 2, 11, 2),
    Sketcher.Constraint("Vertical", 1, 2, 3, 2),
    Sketcher.Constraint("Vertical", 0, 2, 4, 2),
    Sketcher.Constraint("Equal", 4, 7),
    Sketcher.Constraint("Angle", 0, Q("120 deg")),
    Sketcher.Constraint("DistanceY", 3, 2, 1, 2, 5.5),
    Sketcher.Constraint("DistanceX", 0, 2, 6, 2, 10.75),
    Sketcher.Constraint("DistanceX", 1, 2, 1, 1, 3.175426),
    Sketcher.Constraint("DistanceX", 1, 2, -1, 1, 12.335609),
    Sketcher.Constraint("DistanceY", 0, 2, -1, 1, 6.818272),
])
pocket3 = body.newObject("PartDesign::Pocket", "Pocket002")
pocket3.Profile = sketch14
pocket3.Length = 2.5

sketch15 = body.newObject("Sketcher::SketchObject", "Sketch014")
sketch15.AttachmentSupport = (doc.getObject("XZ_Plane"), [""])
sketch15.MapMode = "FlatFace"
sketch15.AttachmentOffset = App.Placement(Vector(0, 0, -2.5), App.Rotation())
sketch15.addGeometry(Part.Circle(Vector(0, -9.6, 0), Vector(0, 0, 1), 1.5), False)
sketch15.addConstraint([
    Sketcher.Constraint("Diameter", 0, 3.0),
    Sketcher.Constraint("DistanceX", -1, 1, 0, 3, 0.002105),
    Sketcher.Constraint("DistanceY", 0, 3, -1, 1, 9.568272),
])
pocket4 = body.newObject("PartDesign::Pocket", "Pocket003")
pocket4.Profile = sketch15
pocket4.Length = 2.5

sketch16 = body.newObject("Sketcher::SketchObject", "Sketch015")
sketch16.AttachmentSupport = (doc.getObject("XZ_Plane"), [""])
sketch16.MapMode = "FlatFace"
sketch16.AttachmentOffset = App.Placement(Vector(0, 0, -2.5), App.Rotation())
sketch16.addGeometry(Part.Circle(Vector(-10.7, -9.6, 0), Vector(0, 0, 1), 1.5), False)
sketch16.addConstraint([
    Sketcher.Constraint("Diameter", 0, 3.0),
    Sketcher.Constraint("DistanceX", 0, 3, -1, 1, 10.747895),
    Sketcher.Constraint("DistanceY", 0, 3, -1, 1, 9.568272),
])
pocket5 = body.newObject("PartDesign::Pocket", "Pocket004")
pocket5.Profile = sketch16
pocket5.Length = 2.5

sketch17 = body.newObject("Sketcher::SketchObject", "Sketch016")
sketch17.AttachmentSupport = (doc.getObject("XZ_Plane"), [""])
sketch17.MapMode = "FlatFace"
sketch17.AttachmentOffset = App.Placement(Vector(0, 0, 46), App.Rotation())
sketch17.addGeometry([
    Part.LineSegment(Vector(3.9, 18.2, 0), Vector(0.9, 19.1, 0)),
    Part.LineSegment(Vector(0.9, 19.1, 0), Vector(-1.4, 16.8, 0)),
    Part.LineSegment(Vector(-1.4, 16.8, 0), Vector(-0.5, 13.8, 0)),
    Part.LineSegment(Vector(-0.5, 13.8, 0), Vector(2.5, 12.9, 0)),
    Part.LineSegment(Vector(2.5, 12.9, 0), Vector(4.8, 15.2, 0)),
    Part.LineSegment(Vector(4.8, 15.2, 0), Vector(3.9, 18.2, 0)),
], False)
sketch17.addConstraint([
    Sketcher.Constraint("Coincident", 0, 2, 1, 1),
    Sketcher.Constraint("Coincident", 1, 2, 2, 1),
    Sketcher.Constraint("Coincident", 2, 2, 3, 1),
    Sketcher.Constraint("Coincident", 3, 2, 4, 1),
    Sketcher.Constraint("Coincident", 4, 2, 5, 1),
    Sketcher.Constraint("Coincident", 5, 2, 0, 1),
    Sketcher.Constraint("Parallel", 0, 3),
    Sketcher.Constraint("Parallel", 1, 4),
    Sketcher.Constraint("Parallel", 2, 5),
    Sketcher.Constraint("Equal", 0, 1),
    Sketcher.Constraint("Equal", 1, 2),
    Sketcher.Constraint("Equal", 2, 3),
    Sketcher.Constraint("Angle", 0, Q("165 deg")),
    Sketcher.Constraint("Angle", 1, Q("-135 deg")),
    Sketcher.Constraint("Angle", 2, Q("-75 deg")),
    Sketcher.Constraint("DistanceX", -1, 1, 4, 2, 4.765399),
    Sketcher.Constraint("DistanceX", -1, 1, 0, 2, 0.876312),
    Sketcher.Constraint("DistanceY", -1, 1, 2, 2, 13.75743),
])
pad12 = body.newObject("PartDesign::Pad", "Pad011")
pad12.Profile = sketch17
pad12.Length = 3

sketch18 = body.newObject("Sketcher::SketchObject", "Sketch017")
sketch18.AttachmentSupport = (doc.getObject("XZ_Plane"), [""])
sketch18.MapMode = "FlatFace"
sketch18.AttachmentOffset = App.Placement(Vector(0, 0, 49), App.Rotation())
sketch18.addGeometry([
    Part.LineSegment(Vector(4.8, 15.2, 0), Vector(3.9, 18.2, 0)),
    Part.LineSegment(Vector(3.9, 18.2, 0), Vector(0.9, 19.1, 0)),
    Part.LineSegment(Vector(0.9, 19.1, 0), Vector(-1.4, 16.8, 0)),
    Part.LineSegment(Vector(-1.4, 16.8, 0), Vector(-0.5, 13.8, 0)),
    Part.LineSegment(Vector(-0.5, 13.8, 0), Vector(2.5, 12.9, 0)),
    Part.LineSegment(Vector(2.5, 12.9, 0), Vector(4.8, 15.2, 0)),
], False)
sketch18.addConstraint([
    Sketcher.Constraint("Coincident", 0, 2, 1, 1),
    Sketcher.Constraint("Coincident", 1, 2, 2, 1),
    Sketcher.Constraint("Coincident", 2, 2, 3, 1),
    Sketcher.Constraint("Coincident", 3, 2, 4, 1),
    Sketcher.Constraint("Coincident", 4, 2, 5, 1),
    Sketcher.Constraint("Coincident", 5, 2, 0, 1),
    Sketcher.Constraint("Parallel", 0, 3),
    Sketcher.Constraint("Parallel", 1, 4),
    Sketcher.Constraint("Parallel", 2, 5),
    Sketcher.Constraint("Equal", 0, 1),
    Sketcher.Constraint("Equal", 1, 2),
    Sketcher.Constraint("Equal", 2, 3),
    Sketcher.Constraint("Angle", 0, Q("105 deg")),
    Sketcher.Constraint("Angle", 1, Q("165 deg")),
    Sketcher.Constraint("Angle", 2, Q("-135 deg")),
    Sketcher.Constraint("DistanceX", -1, 1, 5, 2, 4.765399),
    Sketcher.Constraint("DistanceY", -1, 1, 0, 2, 18.248161),
    Sketcher.Constraint("DistanceX", -1, 1, 1, 2, 0.876312),
])
pocket6 = body.newObject("PartDesign::Pocket", "Pocket005")
pocket6.Profile = sketch18
pocket6.Length = 3

sketch19 = body.newObject("Sketcher::SketchObject", "Sketch018")
sketch19.AttachmentSupport = (doc.getObject("XZ_Plane"), [""])
sketch19.MapMode = "FlatFace"
sketch19.AttachmentOffset = App.Placement(Vector(0, 0, -3), App.Rotation())
sketch19.addGeometry(Part.Circle(Vector(-6, 7, 0), Vector(0, 0, 1), 36), False)
sketch19.addConstraint([
    Sketcher.Constraint("Diameter", 0, 71.724787),
    Sketcher.Constraint("DistanceX", 0, 3, -1, 1, 6.301118),
    Sketcher.Constraint("DistanceY", -1, 1, 0, 3, 7.459698),
])
pocket7 = body.newObject("PartDesign::Pocket", "Pocket006")
pocket7.Profile = sketch19
pocket7.Length = 100
pocket7.Reversed = True
body3 = doc.addObject("PartDesign::Body", "Body002")

sketch20 = body3.newObject("Sketcher::SketchObject", "Sketch019")
sketch20.AttachmentSupport = (doc.getObject("XZ_Plane002"), [""])
sketch20.MapMode = "FlatFace"
sketch20.addGeometry([
    Part.Circle(Vector(60, 9, 0), Vector(0, 0, 1), 15),
    Part.Circle(Vector(60, 9, 0), Vector(0, 0, 1), 5),
], False)
sketch20.addConstraint([
    Sketcher.Constraint("Coincident", 1, 3, 0, 3),
    Sketcher.Constraint("Diameter", 0, 30.0),
    Sketcher.Constraint("Diameter", 1, 10.0),
    Sketcher.Constraint("DistanceX", -1, 1, 0, 3, 59.665545),
    Sketcher.Constraint("DistanceY", -1, 1, 0, 3, 8.931728),
])
pad13 = body3.newObject("PartDesign::Pad", "Pad012")
pad13.Profile = sketch20
pad13.Length = 3
pad13.Reversed = True

sketch21 = body3.newObject("Sketcher::SketchObject", "Sketch020")
sketch21.AttachmentSupport = (doc.getObject("XZ_Plane002"), [""])
sketch21.MapMode = "FlatFace"
sketch21.addGeometry(Part.Circle(Vector(59.7, 18.9, 0), Vector(0, 0, 1), 1.5), False)
sketch21.addConstraint([
    Sketcher.Constraint("Diameter", 0, 3.0),
    Sketcher.Constraint("DistanceX", -1, 1, 0, 3, 59.665545),
    Sketcher.Constraint("DistanceY", -1, 1, 0, 3, 18.931728),
])
pocket8 = body3.newObject("PartDesign::Pocket", "Pocket007")
pocket8.Profile = sketch21
pocket8.Length = 3
doc.recompute()

datumline5 = body3.newObject("PartDesign::Line", "DatumLine004")
datumline5.Placement = App.Placement(Vector(59.665545, 0, 8.931728), App.Rotation(Vector(0, 0, 1), Vector(0, 1, 0)))
polarpattern5 = body3.newObject("PartDesign::PolarPattern", "PolarPattern004")
polarpattern5.Originals = [pocket8]
polarpattern5.Axis = (datumline5, [""])
polarpattern5.Angle = 360
polarpattern5.Occurrences = 4
body3.Tip = polarpattern5

sketch22 = body3.newObject("Sketcher::SketchObject", "Sketch021")
sketch22.AttachmentSupport = (doc.getObject("XZ_Plane002"), [""])
sketch22.MapMode = "FlatFace"
sketch22.addGeometry([
    Part.Circle(Vector(60, 9, 0), Vector(0, 0, 1), 15),
    Part.Circle(Vector(60, 9, 0), Vector(0, 0, 1), 5),
], False)
sketch22.addConstraint([
    Sketcher.Constraint("Coincident", 1, 3, 0, 3),
    Sketcher.Constraint("Diameter", 0, 30.0),
    Sketcher.Constraint("Diameter", 1, 10.0),
    Sketcher.Constraint("DistanceX", -1, 1, 0, 3, 59.665545),
    Sketcher.Constraint("DistanceY", -1, 1, 0, 3, 8.931728),
])
pad14 = body3.newObject("PartDesign::Pad", "Pad013")
pad14.Profile = sketch22
pad14.Length = 43

sketch23 = body3.newObject("Sketcher::SketchObject", "Sketch022")
sketch23.AttachmentSupport = (doc.getObject("XZ_Plane002"), [""])
sketch23.MapMode = "FlatFace"
sketch23.AttachmentOffset = App.Placement(Vector(0, 0, -3), App.Rotation())
sketch23.addGeometry([
    Part.Circle(Vector(59.7, -1.1, 0), Vector(0, 0, 1), 1.5),
    Part.Circle(Vector(69.7, 8.9, 0), Vector(0, 0, 1), 1.5),
    Part.Circle(Vector(59.7, 18.9, 0), Vector(0, 0, 1), 1.5),
    Part.Circle(Vector(49.7, 8.9, 0), Vector(0, 0, 1), 1.5),
], False)
sketch23.addConstraint([
    Sketcher.Constraint("Equal", 0, 1),
    Sketcher.Constraint("Equal", 1, 2),
    Sketcher.Constraint("Equal", 2, 3),
    Sketcher.Constraint("Horizontal", 1, 3, 3, 3),
    Sketcher.Constraint("Vertical", 0, 3, 2, 3),
    Sketcher.Constraint("Diameter", 0, 3.0),
    Sketcher.Constraint("DistanceX", 0, 3, 1, 3, 10.0),
    Sketcher.Constraint("DistanceY", 0, 3, 1, 3, 10.0),
    Sketcher.Constraint("DistanceY", 1, 3, 2, 3, 10.0),
    Sketcher.Constraint("DistanceX", 3, 3, 0, 3, 10.0),
    Sketcher.Constraint("DistanceX", -1, 1, 0, 3, 59.665545),
    Sketcher.Constraint("DistanceY", 0, 3, -1, 1, 1.068272),
])
pocket9 = body3.newObject("PartDesign::Pocket", "Pocket008")
pocket9.Profile = sketch23
pocket9.Length = 46
pocket9.Reversed = True

sketch24 = body3.newObject("Sketcher::SketchObject", "Sketch023")
sketch24.AttachmentSupport = (doc.getObject("XZ_Plane002"), [""])
sketch24.MapMode = "FlatFace"
sketch24.AttachmentOffset = App.Placement(Vector(0, 0, 43), App.Rotation())
sketch24.addGeometry([
    Part.Circle(Vector(59.7, 18.9, 0), Vector(0, 0, 1), 2.8),
    Part.Circle(Vector(49.7, 8.9, 0), Vector(0, 0, 1), 2.8),
    Part.Circle(Vector(59.7, -1.1, 0), Vector(0, 0, 1), 2.8),
    Part.Circle(Vector(69.7, 8.9, 0), Vector(0, 0, 1), 2.8),
], False)
sketch24.addConstraint([
    Sketcher.Constraint("Equal", 0, 1),
    Sketcher.Constraint("Equal", 1, 2),
    Sketcher.Constraint("Equal", 2, 3),
    Sketcher.Constraint("Horizontal", 1, 3, 3, 3),
    Sketcher.Constraint("Vertical", 0, 3, 2, 3),
    Sketcher.Constraint("Diameter", 0, 5.5),
    Sketcher.Constraint("DistanceX", 1, 3, 0, 3, 10.0),
    Sketcher.Constraint("DistanceY", 1, 3, 0, 3, 10.0),
    Sketcher.Constraint("DistanceY", 2, 3, 1, 3, 10.0),
    Sketcher.Constraint("DistanceX", 0, 3, 3, 3, 10.0),
    Sketcher.Constraint("DistanceX", -1, 1, 0, 3, 59.665545),
    Sketcher.Constraint("DistanceY", -1, 1, 0, 3, 18.931728),
])
pocket10 = body3.newObject("PartDesign::Pocket", "Pocket009")
pocket10.Profile = sketch24
pocket10.Length = 43

sketch25 = body3.newObject("Sketcher::SketchObject", "Sketch024")
sketch25.AttachmentSupport = (doc.getObject("XZ_Plane002"), [""])
sketch25.MapMode = "FlatFace"
sketch25.AttachmentOffset = App.Placement(Vector(0, 0, -3), App.Rotation())
sketch25.addGeometry(Part.Circle(Vector(66.7, 1.9, 0), Vector(0, 0, 1), 1.5), False)
sketch25.addConstraint([
    Sketcher.Constraint("Diameter", 0, 3.0),
    Sketcher.Constraint("DistanceY", -1, 1, 0, 3, 1.86066),
    Sketcher.Constraint("DistanceX", -1, 1, 0, 3, 66.736613),
])
pocket11 = body3.newObject("PartDesign::Pocket", "Pocket010")
pocket11.Profile = sketch25
pocket11.Length = 46
pocket11.Reversed = True
doc.recompute()

datumline6 = body3.newObject("PartDesign::Line", "DatumLine005")
datumline6.Placement = App.Placement(Vector(59.665545, 0, 8.931728), App.Rotation(Vector(0, 0, 1), Vector(0, 1, 0)))
polarpattern6 = body3.newObject("PartDesign::PolarPattern", "PolarPattern005")
polarpattern6.Originals = [pocket11]
polarpattern6.Axis = (datumline6, [""])
polarpattern6.Angle = 360
polarpattern6.Occurrences = 4
body3.Tip = polarpattern6

sketch26 = body3.newObject("Sketcher::SketchObject", "Sketch025")
sketch26.AttachmentSupport = (doc.getObject("XZ_Plane002"), [""])
sketch26.MapMode = "FlatFace"
sketch26.AttachmentOffset = App.Placement(Vector(0, 0, -3), App.Rotation())
sketch26.addGeometry([
    Part.LineSegment(Vector(64.5, 4.1, 0), Vector(67.6, 4.9, 0)),
    Part.LineSegment(Vector(67.6, 4.9, 0), Vector(69.8, 2.7, 0)),
    Part.LineSegment(Vector(69.8, 2.7, 0), Vector(69, -0.4, 0)),
    Part.LineSegment(Vector(69, -0.4, 0), Vector(65.9, -1.2, 0)),
    Part.LineSegment(Vector(65.9, -1.2, 0), Vector(63.7, 1, 0)),
    Part.LineSegment(Vector(63.7, 1, 0), Vector(64.5, 4.1, 0)),
], False)
sketch26.addConstraint([
    Sketcher.Constraint("Coincident", 0, 2, 1, 1),
    Sketcher.Constraint("Coincident", 1, 2, 2, 1),
    Sketcher.Constraint("Coincident", 2, 2, 3, 1),
    Sketcher.Constraint("Coincident", 3, 2, 4, 1),
    Sketcher.Constraint("Coincident", 4, 2, 5, 1),
    Sketcher.Constraint("Coincident", 5, 2, 0, 1),
    Sketcher.Constraint("Parallel", 0, 3),
    Sketcher.Constraint("Parallel", 1, 4),
    Sketcher.Constraint("Parallel", 2, 5),
    Sketcher.Constraint("Equal", 0, 1),
    Sketcher.Constraint("Equal", 1, 2),
    Sketcher.Constraint("Equal", 2, 3),
    Sketcher.Constraint("Angle", 0, Q("15 deg")),
    Sketcher.Constraint("Angle", 1, Q("-45 deg")),
    Sketcher.Constraint("Angle", 2, Q("-105 deg")),
    Sketcher.Constraint("DistanceY", -1, 1, 4, 2, 1.038799),
    Sketcher.Constraint("DistanceX", -1, 1, 1, 2, 69.803839),
    Sketcher.Constraint("DistanceY", -1, 1, 1, 2, 2.682521),
])
pocket12 = body3.newObject("PartDesign::Pocket", "Pocket011")
pocket12.Profile = sketch26
pocket12.Length = 43
pocket12.Reversed = True
doc.recompute()

datumline7 = body3.newObject("PartDesign::Line", "DatumLine006")
datumline7.Placement = App.Placement(Vector(59.665545, 0, 8.931728), App.Rotation(Vector(0, 0, 1), Vector(0, 1, 0)))
polarpattern7 = body3.newObject("PartDesign::PolarPattern", "PolarPattern006")
polarpattern7.Originals = [pocket12]
polarpattern7.Axis = (datumline7, [""])
polarpattern7.Angle = 360
polarpattern7.Occurrences = 4
body3.Tip = polarpattern7

doc.recompute()
